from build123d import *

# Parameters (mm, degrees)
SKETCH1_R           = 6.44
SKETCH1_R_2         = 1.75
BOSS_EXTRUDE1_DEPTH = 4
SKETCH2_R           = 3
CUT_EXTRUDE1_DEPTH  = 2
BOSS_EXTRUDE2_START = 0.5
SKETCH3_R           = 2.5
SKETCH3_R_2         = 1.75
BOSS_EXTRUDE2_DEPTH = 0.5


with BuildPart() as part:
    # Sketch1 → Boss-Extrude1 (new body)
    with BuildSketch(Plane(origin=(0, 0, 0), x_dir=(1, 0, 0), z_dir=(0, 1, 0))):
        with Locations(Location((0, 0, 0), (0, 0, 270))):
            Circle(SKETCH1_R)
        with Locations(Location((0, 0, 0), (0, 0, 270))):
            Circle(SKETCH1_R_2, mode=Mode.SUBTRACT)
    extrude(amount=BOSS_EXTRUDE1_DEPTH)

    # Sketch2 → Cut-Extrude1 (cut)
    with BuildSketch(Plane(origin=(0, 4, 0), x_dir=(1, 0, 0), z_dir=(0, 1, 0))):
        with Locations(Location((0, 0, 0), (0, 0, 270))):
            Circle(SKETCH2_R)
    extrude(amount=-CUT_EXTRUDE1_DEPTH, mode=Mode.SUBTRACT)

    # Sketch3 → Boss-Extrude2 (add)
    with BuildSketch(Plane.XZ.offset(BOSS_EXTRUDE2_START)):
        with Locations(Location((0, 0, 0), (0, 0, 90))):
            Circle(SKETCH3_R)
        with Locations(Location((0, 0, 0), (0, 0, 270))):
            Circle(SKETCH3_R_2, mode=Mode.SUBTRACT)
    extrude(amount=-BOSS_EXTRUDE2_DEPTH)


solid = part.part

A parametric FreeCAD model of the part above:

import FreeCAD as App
import Part
import Sketcher

V = App.Vector

doc = App.newDocument("Part")
body = doc.addObject("PartDesign::Body", "Body")

sketch1 = body.newObject("Sketcher::SketchObject", "Sketch")
sketch1.AttachmentSupport = (doc.getObject("XZ_Plane"), [""])
sketch1.MapMode = "FlatFace"
sketch1.addGeometry([
    Part.Circle(V(0, 0, 0), V(0, 0, 1), 6.44),
    Part.Circle(V(0, 0, 0), V(0, 0, 1), 1.75),
], False)
sketch1.addConstraint([
    Sketcher.Constraint("Coincident", 0, 3, -1, 1),
    Sketcher.Constraint("Coincident", 1, 3, -1, 1),
    Sketcher.Constraint("Diameter", 1, 3.5),
    Sketcher.Constraint("Diameter", 0, 12.88),
])
pad1 = body.newObject("PartDesign::Pad", "Pad")
pad1.Profile = sketch1
pad1.Length = 4
pad1.Reversed = True

sketch2 = body.newObject("Sketcher::SketchObject", "Sketch001")
sketch2.AttachmentSupport = (doc.getObject("XZ_Plane"), [""])
sketch2.MapMode = "FlatFace"
sketch2.AttachmentOffset = App.Placement(V(0, 0, -4), App.Rotation())
sketch2.addGeometry(Part.Circle(V(0, 0, 0), V(0, 0, 1), 3), False)
sketch2.addConstraint([
    Sketcher.Constraint("Coincident", 0, 3, -1, 1),
    Sketcher.Constraint("Diameter", 0, 6.0),
])
pocket1 = body.newObject("PartDesign::Pocket", "Pocket")
pocket1.Profile = sketch2
pocket1.Length = 2
pocket1.Reversed = True

sketch3 = body.newObject("Sketcher::SketchObject", "Sketch002")
sketch3.AttachmentSupport = (doc.getObject("XZ_Plane"), [""])
sketch3.MapMode = "FlatFace"
sketch3.AttachmentOffset = App.Placement(V(0, 0, 0.5), App.Rotation())
sketch3.addGeometry([
    Part.Circle(V(0, 0, 0), V(0, 0, 1), 2.5),
    Part.Circle(V(0, 0, 0), V(0, 0, 1), 1.75),
], False)
sketch3.addConstraint([
    Sketcher.Constraint("Coincident", 0, 3, -1, 1),
    Sketcher.Constraint("Coincident", 1, 3, -1, 1),
    Sketcher.Constraint("Diameter", 0, 5.0),
    Sketcher.Constraint("Diameter", 1, 3.5),
])
pad2 = body.newObject("PartDesign::Pad", "Pad001")
pad2.Profile = sketch3
pad2.Length = 0.5
pad2.Reversed = True

doc.recompute()
